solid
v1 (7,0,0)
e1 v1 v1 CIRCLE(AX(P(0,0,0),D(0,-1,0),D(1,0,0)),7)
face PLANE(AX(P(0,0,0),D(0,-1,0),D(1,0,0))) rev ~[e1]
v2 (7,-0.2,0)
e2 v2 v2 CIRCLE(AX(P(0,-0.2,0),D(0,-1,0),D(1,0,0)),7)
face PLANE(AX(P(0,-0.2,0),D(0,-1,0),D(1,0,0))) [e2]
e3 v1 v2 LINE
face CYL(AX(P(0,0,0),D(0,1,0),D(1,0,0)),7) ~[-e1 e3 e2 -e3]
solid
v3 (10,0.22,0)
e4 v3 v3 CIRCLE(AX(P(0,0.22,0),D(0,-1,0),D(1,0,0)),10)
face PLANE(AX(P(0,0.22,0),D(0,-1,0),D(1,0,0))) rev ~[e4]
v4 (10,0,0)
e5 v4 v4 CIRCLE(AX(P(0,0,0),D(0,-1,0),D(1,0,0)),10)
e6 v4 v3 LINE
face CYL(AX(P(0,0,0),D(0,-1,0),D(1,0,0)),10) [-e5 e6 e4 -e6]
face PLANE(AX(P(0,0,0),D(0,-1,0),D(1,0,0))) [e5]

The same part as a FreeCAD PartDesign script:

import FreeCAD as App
import Part
import Sketcher

V = App.Vector
Q = App.Units.Quantity

doc = App.newDocument("Part")
body = doc.addObject("PartDesign::Body", "Body")

# Sketch on XZ plane
sketch1 = body.newObject("Sketcher::SketchObject", "Sketch")
sketch1.AttachmentSupport = (doc.getObject("XZ_Plane"), [""])
sketch1.MapMode = "FlatFace"
sketch1.addGeometry(Part.Circle(V(0, 0, 0), V(0, 0, 1), 10), False)
sketch1.addConstraint([
    Sketcher.Constraint("Coincident", 0, 3, -1, 1),
    Sketcher.Constraint("Diameter", 0, Q("20 mm")),
])
pad1 = body.newObject("PartDesign::Pad", "Pad")
pad1.Profile = sketch1
pad1.Length = 0.22
pad1.Reversed = True
body2 = doc.addObject("PartDesign::Body", "Body001")

# Sketch on XZ plane
sketch2 = body2.newObject("Sketcher::SketchObject", "Sketch001")
sketch2.AttachmentSupport = (doc.getObject("XZ_Plane001"), [""])
sketch2.MapMode = "FlatFace"
sketch2.addGeometry(Part.Circle(V(0, 0, 0), V(0, 0, 1), 7), False)
sketch2.addConstraint([
    Sketcher.Constraint("Coincident", 0, 3, -1, 1),
    Sketcher.Constraint("Diameter", 0, Q("14 mm")),
])
pad2 = body2.newObject("PartDesign::Pad", "Pad001")
pad2.Profile = sketch2
pad2.Length = 0.2

doc.recompute()
